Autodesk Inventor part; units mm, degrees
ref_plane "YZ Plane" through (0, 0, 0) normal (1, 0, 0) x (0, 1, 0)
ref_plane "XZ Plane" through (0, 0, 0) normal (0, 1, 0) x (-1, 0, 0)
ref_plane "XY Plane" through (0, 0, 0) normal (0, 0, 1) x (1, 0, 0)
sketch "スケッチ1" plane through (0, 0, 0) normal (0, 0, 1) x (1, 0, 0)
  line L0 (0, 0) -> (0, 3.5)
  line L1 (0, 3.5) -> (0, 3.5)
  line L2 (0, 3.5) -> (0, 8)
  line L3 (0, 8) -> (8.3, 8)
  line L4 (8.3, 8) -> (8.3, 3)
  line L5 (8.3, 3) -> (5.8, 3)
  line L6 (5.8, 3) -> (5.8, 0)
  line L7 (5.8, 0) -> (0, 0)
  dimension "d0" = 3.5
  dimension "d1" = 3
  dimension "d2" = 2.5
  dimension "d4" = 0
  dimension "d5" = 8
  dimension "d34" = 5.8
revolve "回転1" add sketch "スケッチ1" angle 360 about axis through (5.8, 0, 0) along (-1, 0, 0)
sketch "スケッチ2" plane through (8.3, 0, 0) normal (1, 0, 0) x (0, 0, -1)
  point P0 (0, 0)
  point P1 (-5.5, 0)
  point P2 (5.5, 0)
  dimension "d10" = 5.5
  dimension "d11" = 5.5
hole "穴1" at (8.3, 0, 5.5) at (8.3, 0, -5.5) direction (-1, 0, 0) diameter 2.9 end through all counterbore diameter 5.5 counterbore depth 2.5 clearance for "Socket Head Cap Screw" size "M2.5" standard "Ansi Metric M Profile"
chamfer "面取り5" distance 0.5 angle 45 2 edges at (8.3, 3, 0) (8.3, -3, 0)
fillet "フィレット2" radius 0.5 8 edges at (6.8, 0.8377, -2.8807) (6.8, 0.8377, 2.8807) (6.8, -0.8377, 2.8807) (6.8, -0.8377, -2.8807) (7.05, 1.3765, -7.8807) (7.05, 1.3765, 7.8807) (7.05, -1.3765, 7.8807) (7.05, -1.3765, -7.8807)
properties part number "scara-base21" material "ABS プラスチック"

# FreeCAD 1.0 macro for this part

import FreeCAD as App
import Part
import Sketcher

V = App.Vector
Q = App.Units.Quantity


def edges_at(feature, points):
    """Names of the edges that pass closest to the given points."""
    edges = feature.Shape.Edges
    near = lambda p: min(range(len(edges)), key=lambda i: edges[i].distToShape(Part.Vertex(*p))[0])
    return sorted({f"Edge{near(p) + 1}" for p in points})

doc = App.newDocument("Part")
body = doc.addObject("PartDesign::Body", "Body")

# Sketch on XY plane
sketch1 = body.newObject("Sketcher::SketchObject", "Sketch")
sketch1.AttachmentSupport = (doc.getObject("XY_Plane"), [""])
sketch1.MapMode = "FlatFace"
sketch1.addGeometry(Part.LineSegment(V(0, 8, 0), V(0, 0, 0)), False)
sketch1.addGeometry(Part.LineSegment(V(0, 0, 0), V(5.8, 0, 0)), False)
sketch1.addGeometry(Part.LineSegment(V(5.8, 0, 0), V(5.8, 3, 0)), False)
sketch1.addGeometry(Part.LineSegment(V(5.8, 3, 0), V(8.3, 3, 0)), False)
sketch1.addGeometry(Part.LineSegment(V(8.3, 3, 0), V(8.3, 8, 0)), False)
sketch1.addGeometry(Part.LineSegment(V(8.3, 8, 0), V(0, 8, 0)), False)
sketch1.addConstraint(Sketcher.Constraint("Coincident", 0, 2, 1, 1))
sketch1.addConstraint(Sketcher.Constraint("Coincident", 1, 2, 2, 1))
sketch1.addConstraint(Sketcher.Constraint("Coincident", 2, 2, 3, 1))
sketch1.addConstraint(Sketcher.Constraint("Coincident", 3, 2, 4, 1))
sketch1.addConstraint(Sketcher.Constraint("Coincident", 4, 2, 5, 1))
sketch1.addConstraint(Sketcher.Constraint("Coincident", 5, 2, 0, 1))
sketch1.addConstraint(Sketcher.Constraint("Vertical", 0))
sketch1.addConstraint(Sketcher.Constraint("Horizontal", 1))
sketch1.addConstraint(Sketcher.Constraint("Vertical", 2))
sketch1.addConstraint(Sketcher.Constraint("Horizontal", 3))
sketch1.addConstraint(Sketcher.Constraint("Vertical", 4))
sketch1.addConstraint(Sketcher.Constraint("Horizontal", 5))
sketch1.addConstraint(Sketcher.Constraint("Coincident", 0, 2, -1, 1))
sketch1.addConstraint(Sketcher.Constraint("DistanceY", 0, 2, 0, 1, Q("8 mm")))
sketch1.addConstraint(Sketcher.Constraint("DistanceY", 2, 1, 2, 2, Q("3 mm")))
sketch1.addConstraint(Sketcher.Constraint("DistanceX", 1, 1, 1, 2, Q("5.8 mm")))
sketch1.addConstraint(Sketcher.Constraint("DistanceX", 3, 1, 3, 2, Q("2.5 mm")))
revolution = body.newObject("PartDesign::Revolution", "Revolution")
revolution.Profile = sketch1
revolution.ReferenceAxis = (sketch1, ["H_Axis"])
revolution.Angle = 360

# Sketch on YZ plane
sketch2 = body.newObject("Sketcher::SketchObject", "Sketch001")
sketch2.AttachmentSupport = (doc.getObject("YZ_Plane"), [""])
sketch2.MapMode = "FlatFace"
sketch2.AttachmentOffset = App.Placement(V(0, 0, 8.3), App.Rotation())
sketch2.addGeometry(Part.Circle(V(0, 5.5, 0), V(0, 0, 1), 1.45), False)
sketch2.addGeometry(Part.Circle(V(0, -5.5, 0), V(0, 0, 1), 1.45), False)
sketch2.addConstraint(Sketcher.Constraint("Equal", 0, 1))
sketch2.addConstraint(Sketcher.Constraint("Symmetric", 0, 3, 1, 3, -1, 1))
sketch2.addConstraint(Sketcher.Constraint("PointOnObject", 0, 3, -2))
sketch2.addConstraint(Sketcher.Constraint("Diameter", 0, Q("2.9 mm")))
sketch2.addConstraint(Sketcher.Constraint("DistanceY", 1, 3, 0, 3, Q("11 mm")))
doc.recompute()
hole = body.newObject("PartDesign::Hole", "Hole")
hole.Profile = sketch2
hole.ThreadType = "None"
hole.Diameter = 2.9
hole.DepthType = "ThroughAll"
hole.HoleCutType = "Counterbore"
hole.HoleCutDiameter = 5.5
hole.HoleCutDepth = 2.5
doc.recompute()

chamfer = body.newObject("PartDesign::Chamfer", "Chamfer")
chamfer.Base = (hole, edges_at(hole, [(8.3, 3, 0), (8.3, -3, 0)]))
chamfer.Size = 0.5
doc.recompute()

fillet = body.newObject("PartDesign::Fillet", "Fillet")
fillet.Base = (chamfer, edges_at(chamfer, [
    (6.8, 0.838, -2.881),
    (6.8, 0.838, 2.881),
    (6.8, -0.838, 2.881),
    (6.8, -0.838, -2.881),
    (7.05, 1.377, -7.881),
    (7.05, 1.377, 7.881),
    (7.05, -1.377, 7.881),
    (7.05, -1.377, -7.881),
]))
fillet.Radius = 0.5

doc.recompute()
